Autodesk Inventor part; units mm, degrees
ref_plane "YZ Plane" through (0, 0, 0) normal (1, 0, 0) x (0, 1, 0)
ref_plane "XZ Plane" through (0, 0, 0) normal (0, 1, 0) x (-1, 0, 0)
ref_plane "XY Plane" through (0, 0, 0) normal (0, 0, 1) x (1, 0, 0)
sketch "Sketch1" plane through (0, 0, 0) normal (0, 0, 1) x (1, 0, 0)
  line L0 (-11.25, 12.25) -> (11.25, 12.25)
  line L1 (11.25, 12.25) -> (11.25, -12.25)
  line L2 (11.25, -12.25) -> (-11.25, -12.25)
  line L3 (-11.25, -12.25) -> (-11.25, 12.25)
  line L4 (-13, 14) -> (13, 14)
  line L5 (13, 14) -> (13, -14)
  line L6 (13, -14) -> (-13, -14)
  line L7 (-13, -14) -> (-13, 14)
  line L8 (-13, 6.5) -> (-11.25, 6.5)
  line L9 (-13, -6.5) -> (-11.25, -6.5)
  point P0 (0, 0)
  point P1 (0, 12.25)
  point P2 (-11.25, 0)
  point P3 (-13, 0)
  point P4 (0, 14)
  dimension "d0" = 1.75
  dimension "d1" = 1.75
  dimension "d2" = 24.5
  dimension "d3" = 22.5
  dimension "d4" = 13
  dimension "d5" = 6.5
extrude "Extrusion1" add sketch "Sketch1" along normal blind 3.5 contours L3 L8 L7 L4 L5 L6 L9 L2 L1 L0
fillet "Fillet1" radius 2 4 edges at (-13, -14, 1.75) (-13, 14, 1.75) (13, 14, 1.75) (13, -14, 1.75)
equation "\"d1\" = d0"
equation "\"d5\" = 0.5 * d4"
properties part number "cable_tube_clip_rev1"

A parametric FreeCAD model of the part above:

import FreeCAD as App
import Part
import Sketcher
from FreeCAD import Vector
Q = App.Units.Quantity


def edges_at(feature, points):
    """Names of the edges that pass closest to the given points."""
    edges = feature.Shape.Edges
    near = lambda p: min(range(len(edges)), key=lambda i: edges[i].distToShape(Part.Vertex(*p))[0])
    return sorted({f"Edge{near(p) + 1}" for p in points})


def add_polygon(sketch, points):
    """Adds a closed chain of lines whose ends are joined by coincident constraints."""
    first, n = sketch.GeometryCount, len(points)
    for a, b in zip(points, points[1:] + points[:1]):
        sketch.addGeometry(Part.LineSegment(App.Vector(*a, 0), App.Vector(*b, 0)), False)
    for i in range(n):
        sketch.addConstraint(Sketcher.Constraint("Coincident", first + i, 2, first + (i + 1) % n, 1))

doc = App.newDocument("Part")
params = doc.addObject("Spreadsheet::Sheet", "Params")
for row, (alias, value) in enumerate([
    ("sketch1_width", "22.5 mm"),
    ("sketch1_height", "24.5 mm"),
    ("sketch1_height2", "28 mm"),
    ("pad1_length", "3.5 mm"),
    ("fillet_radius", "2 mm"),
], start=1):
    params.set(f"A{row}", alias)
    params.set(f"B{row}", "=" + value)
    params.setAlias(f"B{row}", alias)

body = doc.addObject("PartDesign::Body", "Body")

# Sketch on XY plane
sketch1 = body.newObject("Sketcher::SketchObject", "Sketch")
sketch1.AttachmentSupport = (doc.getObject("XY_Plane"), [""])
sketch1.MapMode = "FlatFace"
add_polygon(sketch1, [(-11.2, 6.5), (-11.2, 12.2), (11.2, 12.2), (11.2, -12.2), (-11.2, -12.2), (-11.2, -6.5), (-13, -6.5), (-13, -14), (13, -14), (13, 14), (-13, 14), (-13, 6.5)])  # lines 0-11
sketch1.addConstraint([
    Sketcher.Constraint("Vertical", 0),
    Sketcher.Constraint("Horizontal", 1),
    Sketcher.Constraint("Vertical", 2),
    Sketcher.Constraint("Horizontal", 3),
    Sketcher.Constraint("Vertical", 4),
    Sketcher.Constraint("Horizontal", 5),
    Sketcher.Constraint("Vertical", 6),
    Sketcher.Constraint("Horizontal", 7),
    Sketcher.Constraint("Vertical", 8),
    Sketcher.Constraint("Horizontal", 9),
    Sketcher.Constraint("Vertical", 10),
    Sketcher.Constraint("Horizontal", 11),
    Sketcher.Constraint("Symmetric", 0, 2, 2, 2, -1, 1),
    Sketcher.Constraint("Symmetric", 6, 2, 8, 2, -1, 1),
    Sketcher.Constraint("Symmetric", 5, 2, 10, 2, -1),
    Sketcher.Constraint("Vertical", 0, 2, 3, 2),
    Sketcher.Constraint("DistanceX", 1, 1, 1, 2, Q("22.5 mm")),
    Sketcher.Constraint("DistanceY", 2, 2, 2, 1, Q("24.5 mm")),
    Sketcher.Constraint("DistanceX", 5, 2, -1, 1, Q("13 mm")),
    Sketcher.Constraint("DistanceY", 5, 2, 10, 2, Q("13 mm")),
    Sketcher.Constraint("DistanceY", 8, 1, 8, 2, Q("28 mm")),
])
sketch1.setExpression("Constraints[28]", "Params.sketch1_width")
sketch1.setExpression("Constraints[29]", "Params.sketch1_height")
sketch1.setExpression("Constraints[32]", "Params.sketch1_height2")
pad1 = body.newObject("PartDesign::Pad", "Pad")
pad1.Profile = sketch1
pad1.setExpression("Length", "Params.pad1_length")
doc.recompute()

fillet = body.newObject("PartDesign::Fillet", "Fillet")
fillet.Base = (pad1, edges_at(pad1, [
    (-13, -14, 1.75),
    (-13, 14, 1.75),
    (13, 14, 1.75),
    (13, -14, 1.75),
]))
fillet.setExpression("Radius", "Params.fillet_radius")

doc.recompute()
